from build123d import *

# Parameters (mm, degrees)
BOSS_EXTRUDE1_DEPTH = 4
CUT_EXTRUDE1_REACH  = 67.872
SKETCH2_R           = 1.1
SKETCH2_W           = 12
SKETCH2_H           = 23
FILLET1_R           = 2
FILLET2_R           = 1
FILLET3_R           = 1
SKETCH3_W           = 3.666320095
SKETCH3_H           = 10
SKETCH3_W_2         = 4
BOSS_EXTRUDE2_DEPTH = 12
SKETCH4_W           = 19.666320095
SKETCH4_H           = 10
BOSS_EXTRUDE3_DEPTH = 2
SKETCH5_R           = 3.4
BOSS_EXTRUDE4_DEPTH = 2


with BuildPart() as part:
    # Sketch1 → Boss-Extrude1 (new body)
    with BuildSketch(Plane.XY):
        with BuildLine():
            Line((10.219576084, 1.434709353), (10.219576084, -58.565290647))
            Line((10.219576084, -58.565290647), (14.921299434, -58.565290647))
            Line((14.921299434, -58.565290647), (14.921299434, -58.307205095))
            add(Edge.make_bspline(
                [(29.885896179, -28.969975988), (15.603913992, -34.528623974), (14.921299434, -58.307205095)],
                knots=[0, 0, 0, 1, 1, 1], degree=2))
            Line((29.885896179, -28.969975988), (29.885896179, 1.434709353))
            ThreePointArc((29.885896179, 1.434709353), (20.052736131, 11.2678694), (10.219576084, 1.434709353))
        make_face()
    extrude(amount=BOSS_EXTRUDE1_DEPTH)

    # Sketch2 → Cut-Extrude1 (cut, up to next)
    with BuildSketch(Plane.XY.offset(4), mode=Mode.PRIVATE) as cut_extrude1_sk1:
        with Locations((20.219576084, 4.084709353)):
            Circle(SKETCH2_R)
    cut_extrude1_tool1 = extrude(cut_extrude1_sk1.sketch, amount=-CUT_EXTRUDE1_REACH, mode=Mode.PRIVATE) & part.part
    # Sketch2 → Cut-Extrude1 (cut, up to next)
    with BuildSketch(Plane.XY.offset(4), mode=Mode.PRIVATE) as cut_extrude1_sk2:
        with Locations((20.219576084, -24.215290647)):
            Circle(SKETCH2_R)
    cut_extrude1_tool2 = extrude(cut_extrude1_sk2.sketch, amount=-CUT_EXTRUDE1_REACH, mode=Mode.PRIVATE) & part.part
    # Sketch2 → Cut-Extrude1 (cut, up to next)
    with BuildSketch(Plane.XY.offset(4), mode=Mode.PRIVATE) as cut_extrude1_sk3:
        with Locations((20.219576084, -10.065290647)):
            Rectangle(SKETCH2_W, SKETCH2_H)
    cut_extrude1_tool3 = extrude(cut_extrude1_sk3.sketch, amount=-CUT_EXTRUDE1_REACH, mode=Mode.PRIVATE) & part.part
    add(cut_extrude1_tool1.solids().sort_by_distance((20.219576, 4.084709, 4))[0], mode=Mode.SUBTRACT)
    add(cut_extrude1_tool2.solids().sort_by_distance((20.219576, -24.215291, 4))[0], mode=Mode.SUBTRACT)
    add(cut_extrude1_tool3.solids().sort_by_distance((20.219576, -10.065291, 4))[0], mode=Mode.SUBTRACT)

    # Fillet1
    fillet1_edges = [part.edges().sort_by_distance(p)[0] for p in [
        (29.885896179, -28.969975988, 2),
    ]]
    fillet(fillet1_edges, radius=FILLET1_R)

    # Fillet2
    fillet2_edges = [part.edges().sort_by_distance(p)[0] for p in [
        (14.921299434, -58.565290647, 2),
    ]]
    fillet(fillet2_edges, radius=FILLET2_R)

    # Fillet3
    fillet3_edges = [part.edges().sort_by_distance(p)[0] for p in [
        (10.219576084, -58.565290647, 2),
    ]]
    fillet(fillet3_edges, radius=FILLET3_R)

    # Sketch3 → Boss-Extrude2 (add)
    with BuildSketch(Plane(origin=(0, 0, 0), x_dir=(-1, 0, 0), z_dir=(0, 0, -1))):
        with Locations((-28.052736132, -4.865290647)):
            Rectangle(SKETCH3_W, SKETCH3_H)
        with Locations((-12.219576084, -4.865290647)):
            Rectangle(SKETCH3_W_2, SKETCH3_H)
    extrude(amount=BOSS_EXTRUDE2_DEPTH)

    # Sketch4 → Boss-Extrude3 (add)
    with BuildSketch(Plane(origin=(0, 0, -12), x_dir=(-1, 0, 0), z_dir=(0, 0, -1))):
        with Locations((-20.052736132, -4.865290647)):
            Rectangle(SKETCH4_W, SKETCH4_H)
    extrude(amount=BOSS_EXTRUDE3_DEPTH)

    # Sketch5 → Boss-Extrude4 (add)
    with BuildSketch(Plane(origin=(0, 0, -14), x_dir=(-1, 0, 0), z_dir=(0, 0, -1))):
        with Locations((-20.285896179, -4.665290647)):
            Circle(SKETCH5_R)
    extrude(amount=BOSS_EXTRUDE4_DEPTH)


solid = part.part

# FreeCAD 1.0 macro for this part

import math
import FreeCAD as App
import Part
import Sketcher
from FreeCAD import Vector
Q = App.Units.Quantity


def edges_at(feature, points):
    """Names of the edges that pass closest to the given points."""
    edges = feature.Shape.Edges
    near = lambda p: min(range(len(edges)), key=lambda i: edges[i].distToShape(Part.Vertex(*p))[0])
    return sorted({f"Edge{near(p) + 1}" for p in points})


def add_polygon(sketch, points):
    """Adds a closed chain of lines whose ends are joined by coincident constraints."""
    first, n = sketch.GeometryCount, len(points)
    for a, b in zip(points, points[1:] + points[:1]):
        sketch.addGeometry(Part.LineSegment(App.Vector(*a, 0), App.Vector(*b, 0)), False)
    for i in range(n):
        sketch.addConstraint(Sketcher.Constraint("Coincident", first + i, 2, first + (i + 1) % n, 1))

doc = App.newDocument("Part")
body = doc.addObject("PartDesign::Body", "Body")

# Sketch on XY plane
sketch1 = body.newObject("Sketcher::SketchObject", "Sketch")
sketch1.AttachmentSupport = (doc.getObject("XY_Plane"), [""])
sketch1.MapMode = "FlatFace"
sketch1.addGeometry(Part.LineSegment(Vector(10.219576, 1.434709, 0), Vector(10.219576, -58.565291, 0)), False)
sketch1.addGeometry(Part.LineSegment(Vector(10.219576, -58.565291, 0), Vector(14.921299, -58.565291, 0)), False)
sketch1.addGeometry(Part.LineSegment(Vector(14.921299, -58.565291, 0), Vector(14.921299, -58.307205, 0)), False)
sketch1.addGeometry(Part.BSplineCurve([Vector(29.885896, -28.969976, 0), Vector(15.603914, -34.528624, 0), Vector(14.921299, -58.307205, 0)], [3, 3], [0, 1], False, 2, [1, 1, 1], False), False)
sketch1.addGeometry(Part.LineSegment(Vector(29.885896, -28.969976, 0), Vector(29.885896, 1.434709, 0)), False)
sketch1.addGeometry(Part.ArcOfCircle(Part.Circle(Vector(20.052736, 1.434709, 0), Vector(0, 0, 1), 9.83316), math.radians(0), math.radians(180)), False)
sketch1.addConstraint(Sketcher.Constraint("Block", 3))
sketch1.addConstraint(Sketcher.Constraint("Coincident", 0, 2, 1, 1))
sketch1.addConstraint(Sketcher.Constraint("Coincident", 1, 2, 2, 1))
sketch1.addConstraint(Sketcher.Constraint("Coincident", 2, 2, 3, 2))
sketch1.addConstraint(Sketcher.Constraint("Coincident", 3, 1, 4, 1))
sketch1.addConstraint(Sketcher.Constraint("Tangent", 4, 2, 5, 1))
sketch1.addConstraint(Sketcher.Constraint("Tangent", 5, 2, 0, 1))
sketch1.addConstraint(Sketcher.Constraint("Vertical", 0))
sketch1.addConstraint(Sketcher.Constraint("Horizontal", 1))
sketch1.addConstraint(Sketcher.Constraint("Vertical", 2))
sketch1.addConstraint(Sketcher.Constraint("Vertical", 4))
sketch1.addConstraint(Sketcher.Constraint("DistanceY", 0, 2, 0, 1, Q("60 mm")))
sketch1.addConstraint(Sketcher.Constraint("Radius", 5, Q("9.83316 mm")))
sketch1.addConstraint(Sketcher.Constraint("DistanceY", 2, 1, 2, 2, Q("0.258086 mm")))
pad1 = body.newObject("PartDesign::Pad", "Pad")
pad1.Profile = sketch1
pad1.Length = 4

# Sketch on XY plane
sketch2 = body.newObject("Sketcher::SketchObject", "Sketch001")
sketch2.AttachmentSupport = (doc.getObject("XY_Plane"), [""])
sketch2.MapMode = "FlatFace"
sketch2.AttachmentOffset = App.Placement(Vector(0, 0, 4), App.Rotation())
sketch2.addGeometry(Part.Circle(Vector(20.2, 4.1, 0), Vector(0, 0, 1), 1.1), False)
sketch2.addConstraint(Sketcher.Constraint("Diameter", 0, Q("2.2 mm")))
sketch2.addConstraint(Sketcher.Constraint("DistanceY", -1, 1, 0, 3, Q("4.084709 mm")))
sketch2.addConstraint(Sketcher.Constraint("DistanceX", -1, 1, 0, 3, Q("20.219576 mm")))
pocket1 = body.newObject("PartDesign::Pocket", "Pocket")
pocket1.Profile = sketch2
pocket1.Type = "UpToFirst"

# Sketch on XY plane
sketch3 = body.newObject("Sketcher::SketchObject", "Sketch002")
sketch3.AttachmentSupport = (doc.getObject("XY_Plane"), [""])
sketch3.MapMode = "FlatFace"
sketch3.AttachmentOffset = App.Placement(Vector(0, 0, 4), App.Rotation())
sketch3.addGeometry(Part.Circle(Vector(20.2, -24.2, 0), Vector(0, 0, 1), 1.1), False)
sketch3.addConstraint(Sketcher.Constraint("Diameter", 0, Q("2.2 mm")))
sketch3.addConstraint(Sketcher.Constraint("DistanceY", 0, 3, -1, 1, Q("24.215291 mm")))
sketch3.addConstraint(Sketcher.Constraint("DistanceX", -1, 1, 0, 3, Q("20.219576 mm")))
pocket2 = body.newObject("PartDesign::Pocket", "Pocket001")
pocket2.Profile = sketch3
pocket2.Type = "UpToFirst"

# Sketch on XY plane
sketch4 = body.newObject("Sketcher::SketchObject", "Sketch003")
sketch4.AttachmentSupport = (doc.getObject("XY_Plane"), [""])
sketch4.MapMode = "FlatFace"
sketch4.AttachmentOffset = App.Placement(Vector(0, 0, 4), App.Rotation())
add_polygon(sketch4, [(14, 1), (14, -22), (26, -22), (26, 1)])  # lines 0-3
sketch4.addConstraint(Sketcher.Constraint("Vertical", 0))
sketch4.addConstraint(Sketcher.Constraint("Horizontal", 1))
sketch4.addConstraint(Sketcher.Constraint("Vertical", 2))
sketch4.addConstraint(Sketcher.Constraint("Horizontal", 3))
sketch4.addConstraint(Sketcher.Constraint("DistanceX", 1, 1, 1, 2, Q("12 mm")))
sketch4.addConstraint(Sketcher.Constraint("DistanceY", 0, 2, 0, 1, Q("23 mm")))
sketch4.addConstraint(Sketcher.Constraint("DistanceY", 0, 2, -1, 1, Q("21.565291 mm")))
sketch4.addConstraint(Sketcher.Constraint("DistanceX", -1, 1, 0, 2, Q("14.219576 mm")))
pocket3 = body.newObject("PartDesign::Pocket", "Pocket002")
pocket3.Profile = sketch4
pocket3.Type = "UpToFirst"
doc.recompute()

fillet = body.newObject("PartDesign::Fillet", "Fillet")
fillet.Base = (pocket3, edges_at(pocket3, [(29.886, -28.97, 2)]))
fillet.Radius = 2
doc.recompute()

fillet2 = body.newObject("PartDesign::Fillet", "Fillet001")
fillet2.Base = (fillet, edges_at(fillet, [(14.921, -58.565, 2)]))
fillet2.Radius = 1
doc.recompute()

fillet3 = body.newObject("PartDesign::Fillet", "Fillet002")
fillet3.Base = (fillet2, edges_at(fillet2, [(10.22, -58.565, 2)]))
fillet3.Radius = 1

# Sketch on XY plane
sketch5 = body.newObject("Sketcher::SketchObject", "Sketch004")
sketch5.AttachmentSupport = (doc.getObject("XY_Plane"), [""])
sketch5.MapMode = "FlatFace"
add_polygon(sketch5, [(29.9, 0.1), (29.9, -9.9), (26.2, -9.9), (26.2, 0.1)])  # lines 0-3
add_polygon(sketch5, [(14.2, 0.1), (14.2, -9.9), (10.2, -9.9), (10.2, 0.1)])  # lines 4-7
sketch5.addConstraint(Sketcher.Constraint("Vertical", 0))
sketch5.addConstraint(Sketcher.Constraint("Horizontal", 1))
sketch5.addConstraint(Sketcher.Constraint("Vertical", 2))
sketch5.addConstraint(Sketcher.Constraint("Horizontal", 3))
sketch5.addConstraint(Sketcher.Constraint("Vertical", 4))
sketch5.addConstraint(Sketcher.Constraint("Horizontal", 5))
sketch5.addConstraint(Sketcher.Constraint("Vertical", 6))
sketch5.addConstraint(Sketcher.Constraint("Horizontal", 7))
sketch5.addConstraint(Sketcher.Constraint("Horizontal", 1, 2, 4, 2))
sketch5.addConstraint(Sketcher.Constraint("Horizontal", 3, 2, 6, 2))
sketch5.addConstraint(Sketcher.Constraint("DistanceX", 5, 2, 5, 1, Q("4 mm")))
sketch5.addConstraint(Sketcher.Constraint("DistanceY", 0, 2, 0, 1, Q("10 mm")))
sketch5.addConstraint(Sketcher.Constraint("DistanceX", 4, 2, 1, 2, Q("12 mm")))
sketch5.addConstraint(Sketcher.Constraint("DistanceX", 1, 2, 1, 1, Q("3.66632 mm")))
sketch5.addConstraint(Sketcher.Constraint("DistanceY", 0, 2, -1, 1, Q("9.865291 mm")))
sketch5.addConstraint(Sketcher.Constraint("DistanceX", -1, 1, 0, 2, Q("29.885896 mm")))
pad2 = body.newObject("PartDesign::Pad", "Pad001")
pad2.Profile = sketch5
pad2.Length = 12
pad2.Reversed = True

# Sketch on XY plane
sketch6 = body.newObject("Sketcher::SketchObject", "Sketch005")
sketch6.AttachmentSupport = (doc.getObject("XY_Plane"), [""])
sketch6.MapMode = "FlatFace"
sketch6.AttachmentOffset = App.Placement(Vector(0, 0, -12), App.Rotation())
add_polygon(sketch6, [(30, 0), (30, -10), (10, -10), (10, 0)])  # lines 0-3
sketch6.addConstraint(Sketcher.Constraint("Vertical", 0))
sketch6.addConstraint(Sketcher.Constraint("Horizontal", 1))
sketch6.addConstraint(Sketcher.Constraint("Vertical", 2))
sketch6.addConstraint(Sketcher.Constraint("Horizontal", 3))
sketch6.addConstraint(Sketcher.Constraint("DistanceY", 0, 2, 0, 1, Q("10 mm")))
sketch6.addConstraint(Sketcher.Constraint("DistanceX", 1, 2, 1, 1, Q("19.66632 mm")))
sketch6.addConstraint(Sketcher.Constraint("DistanceY", 0, 2, -1, 1, Q("9.865291 mm")))
sketch6.addConstraint(Sketcher.Constraint("DistanceX", -1, 1, 0, 2, Q("29.885896 mm")))
pad3 = body.newObject("PartDesign::Pad", "Pad002")
pad3.Profile = sketch6
pad3.Length = 2
pad3.Reversed = True

# Sketch on XY plane
sketch7 = body.newObject("Sketcher::SketchObject", "Sketch006")
sketch7.AttachmentSupport = (doc.getObject("XY_Plane"), [""])
sketch7.MapMode = "FlatFace"
sketch7.AttachmentOffset = App.Placement(Vector(0, 0, -14), App.Rotation())
sketch7.addGeometry(Part.Circle(Vector(20.3, -4.7, 0), Vector(0, 0, 1), 3.4), False)
sketch7.addConstraint(Sketcher.Constraint("Diameter", 0, Q("6.8 mm")))
sketch7.addConstraint(Sketcher.Constraint("DistanceY", 0, 3, -1, 1, Q("4.665291 mm")))
sketch7.addConstraint(Sketcher.Constraint("DistanceX", -1, 1, 0, 3, Q("20.285896 mm")))
pad4 = body.newObject("PartDesign::Pad", "Pad003")
pad4.Profile = sketch7
pad4.Length = 2
pad4.Reversed = True

doc.recompute()
